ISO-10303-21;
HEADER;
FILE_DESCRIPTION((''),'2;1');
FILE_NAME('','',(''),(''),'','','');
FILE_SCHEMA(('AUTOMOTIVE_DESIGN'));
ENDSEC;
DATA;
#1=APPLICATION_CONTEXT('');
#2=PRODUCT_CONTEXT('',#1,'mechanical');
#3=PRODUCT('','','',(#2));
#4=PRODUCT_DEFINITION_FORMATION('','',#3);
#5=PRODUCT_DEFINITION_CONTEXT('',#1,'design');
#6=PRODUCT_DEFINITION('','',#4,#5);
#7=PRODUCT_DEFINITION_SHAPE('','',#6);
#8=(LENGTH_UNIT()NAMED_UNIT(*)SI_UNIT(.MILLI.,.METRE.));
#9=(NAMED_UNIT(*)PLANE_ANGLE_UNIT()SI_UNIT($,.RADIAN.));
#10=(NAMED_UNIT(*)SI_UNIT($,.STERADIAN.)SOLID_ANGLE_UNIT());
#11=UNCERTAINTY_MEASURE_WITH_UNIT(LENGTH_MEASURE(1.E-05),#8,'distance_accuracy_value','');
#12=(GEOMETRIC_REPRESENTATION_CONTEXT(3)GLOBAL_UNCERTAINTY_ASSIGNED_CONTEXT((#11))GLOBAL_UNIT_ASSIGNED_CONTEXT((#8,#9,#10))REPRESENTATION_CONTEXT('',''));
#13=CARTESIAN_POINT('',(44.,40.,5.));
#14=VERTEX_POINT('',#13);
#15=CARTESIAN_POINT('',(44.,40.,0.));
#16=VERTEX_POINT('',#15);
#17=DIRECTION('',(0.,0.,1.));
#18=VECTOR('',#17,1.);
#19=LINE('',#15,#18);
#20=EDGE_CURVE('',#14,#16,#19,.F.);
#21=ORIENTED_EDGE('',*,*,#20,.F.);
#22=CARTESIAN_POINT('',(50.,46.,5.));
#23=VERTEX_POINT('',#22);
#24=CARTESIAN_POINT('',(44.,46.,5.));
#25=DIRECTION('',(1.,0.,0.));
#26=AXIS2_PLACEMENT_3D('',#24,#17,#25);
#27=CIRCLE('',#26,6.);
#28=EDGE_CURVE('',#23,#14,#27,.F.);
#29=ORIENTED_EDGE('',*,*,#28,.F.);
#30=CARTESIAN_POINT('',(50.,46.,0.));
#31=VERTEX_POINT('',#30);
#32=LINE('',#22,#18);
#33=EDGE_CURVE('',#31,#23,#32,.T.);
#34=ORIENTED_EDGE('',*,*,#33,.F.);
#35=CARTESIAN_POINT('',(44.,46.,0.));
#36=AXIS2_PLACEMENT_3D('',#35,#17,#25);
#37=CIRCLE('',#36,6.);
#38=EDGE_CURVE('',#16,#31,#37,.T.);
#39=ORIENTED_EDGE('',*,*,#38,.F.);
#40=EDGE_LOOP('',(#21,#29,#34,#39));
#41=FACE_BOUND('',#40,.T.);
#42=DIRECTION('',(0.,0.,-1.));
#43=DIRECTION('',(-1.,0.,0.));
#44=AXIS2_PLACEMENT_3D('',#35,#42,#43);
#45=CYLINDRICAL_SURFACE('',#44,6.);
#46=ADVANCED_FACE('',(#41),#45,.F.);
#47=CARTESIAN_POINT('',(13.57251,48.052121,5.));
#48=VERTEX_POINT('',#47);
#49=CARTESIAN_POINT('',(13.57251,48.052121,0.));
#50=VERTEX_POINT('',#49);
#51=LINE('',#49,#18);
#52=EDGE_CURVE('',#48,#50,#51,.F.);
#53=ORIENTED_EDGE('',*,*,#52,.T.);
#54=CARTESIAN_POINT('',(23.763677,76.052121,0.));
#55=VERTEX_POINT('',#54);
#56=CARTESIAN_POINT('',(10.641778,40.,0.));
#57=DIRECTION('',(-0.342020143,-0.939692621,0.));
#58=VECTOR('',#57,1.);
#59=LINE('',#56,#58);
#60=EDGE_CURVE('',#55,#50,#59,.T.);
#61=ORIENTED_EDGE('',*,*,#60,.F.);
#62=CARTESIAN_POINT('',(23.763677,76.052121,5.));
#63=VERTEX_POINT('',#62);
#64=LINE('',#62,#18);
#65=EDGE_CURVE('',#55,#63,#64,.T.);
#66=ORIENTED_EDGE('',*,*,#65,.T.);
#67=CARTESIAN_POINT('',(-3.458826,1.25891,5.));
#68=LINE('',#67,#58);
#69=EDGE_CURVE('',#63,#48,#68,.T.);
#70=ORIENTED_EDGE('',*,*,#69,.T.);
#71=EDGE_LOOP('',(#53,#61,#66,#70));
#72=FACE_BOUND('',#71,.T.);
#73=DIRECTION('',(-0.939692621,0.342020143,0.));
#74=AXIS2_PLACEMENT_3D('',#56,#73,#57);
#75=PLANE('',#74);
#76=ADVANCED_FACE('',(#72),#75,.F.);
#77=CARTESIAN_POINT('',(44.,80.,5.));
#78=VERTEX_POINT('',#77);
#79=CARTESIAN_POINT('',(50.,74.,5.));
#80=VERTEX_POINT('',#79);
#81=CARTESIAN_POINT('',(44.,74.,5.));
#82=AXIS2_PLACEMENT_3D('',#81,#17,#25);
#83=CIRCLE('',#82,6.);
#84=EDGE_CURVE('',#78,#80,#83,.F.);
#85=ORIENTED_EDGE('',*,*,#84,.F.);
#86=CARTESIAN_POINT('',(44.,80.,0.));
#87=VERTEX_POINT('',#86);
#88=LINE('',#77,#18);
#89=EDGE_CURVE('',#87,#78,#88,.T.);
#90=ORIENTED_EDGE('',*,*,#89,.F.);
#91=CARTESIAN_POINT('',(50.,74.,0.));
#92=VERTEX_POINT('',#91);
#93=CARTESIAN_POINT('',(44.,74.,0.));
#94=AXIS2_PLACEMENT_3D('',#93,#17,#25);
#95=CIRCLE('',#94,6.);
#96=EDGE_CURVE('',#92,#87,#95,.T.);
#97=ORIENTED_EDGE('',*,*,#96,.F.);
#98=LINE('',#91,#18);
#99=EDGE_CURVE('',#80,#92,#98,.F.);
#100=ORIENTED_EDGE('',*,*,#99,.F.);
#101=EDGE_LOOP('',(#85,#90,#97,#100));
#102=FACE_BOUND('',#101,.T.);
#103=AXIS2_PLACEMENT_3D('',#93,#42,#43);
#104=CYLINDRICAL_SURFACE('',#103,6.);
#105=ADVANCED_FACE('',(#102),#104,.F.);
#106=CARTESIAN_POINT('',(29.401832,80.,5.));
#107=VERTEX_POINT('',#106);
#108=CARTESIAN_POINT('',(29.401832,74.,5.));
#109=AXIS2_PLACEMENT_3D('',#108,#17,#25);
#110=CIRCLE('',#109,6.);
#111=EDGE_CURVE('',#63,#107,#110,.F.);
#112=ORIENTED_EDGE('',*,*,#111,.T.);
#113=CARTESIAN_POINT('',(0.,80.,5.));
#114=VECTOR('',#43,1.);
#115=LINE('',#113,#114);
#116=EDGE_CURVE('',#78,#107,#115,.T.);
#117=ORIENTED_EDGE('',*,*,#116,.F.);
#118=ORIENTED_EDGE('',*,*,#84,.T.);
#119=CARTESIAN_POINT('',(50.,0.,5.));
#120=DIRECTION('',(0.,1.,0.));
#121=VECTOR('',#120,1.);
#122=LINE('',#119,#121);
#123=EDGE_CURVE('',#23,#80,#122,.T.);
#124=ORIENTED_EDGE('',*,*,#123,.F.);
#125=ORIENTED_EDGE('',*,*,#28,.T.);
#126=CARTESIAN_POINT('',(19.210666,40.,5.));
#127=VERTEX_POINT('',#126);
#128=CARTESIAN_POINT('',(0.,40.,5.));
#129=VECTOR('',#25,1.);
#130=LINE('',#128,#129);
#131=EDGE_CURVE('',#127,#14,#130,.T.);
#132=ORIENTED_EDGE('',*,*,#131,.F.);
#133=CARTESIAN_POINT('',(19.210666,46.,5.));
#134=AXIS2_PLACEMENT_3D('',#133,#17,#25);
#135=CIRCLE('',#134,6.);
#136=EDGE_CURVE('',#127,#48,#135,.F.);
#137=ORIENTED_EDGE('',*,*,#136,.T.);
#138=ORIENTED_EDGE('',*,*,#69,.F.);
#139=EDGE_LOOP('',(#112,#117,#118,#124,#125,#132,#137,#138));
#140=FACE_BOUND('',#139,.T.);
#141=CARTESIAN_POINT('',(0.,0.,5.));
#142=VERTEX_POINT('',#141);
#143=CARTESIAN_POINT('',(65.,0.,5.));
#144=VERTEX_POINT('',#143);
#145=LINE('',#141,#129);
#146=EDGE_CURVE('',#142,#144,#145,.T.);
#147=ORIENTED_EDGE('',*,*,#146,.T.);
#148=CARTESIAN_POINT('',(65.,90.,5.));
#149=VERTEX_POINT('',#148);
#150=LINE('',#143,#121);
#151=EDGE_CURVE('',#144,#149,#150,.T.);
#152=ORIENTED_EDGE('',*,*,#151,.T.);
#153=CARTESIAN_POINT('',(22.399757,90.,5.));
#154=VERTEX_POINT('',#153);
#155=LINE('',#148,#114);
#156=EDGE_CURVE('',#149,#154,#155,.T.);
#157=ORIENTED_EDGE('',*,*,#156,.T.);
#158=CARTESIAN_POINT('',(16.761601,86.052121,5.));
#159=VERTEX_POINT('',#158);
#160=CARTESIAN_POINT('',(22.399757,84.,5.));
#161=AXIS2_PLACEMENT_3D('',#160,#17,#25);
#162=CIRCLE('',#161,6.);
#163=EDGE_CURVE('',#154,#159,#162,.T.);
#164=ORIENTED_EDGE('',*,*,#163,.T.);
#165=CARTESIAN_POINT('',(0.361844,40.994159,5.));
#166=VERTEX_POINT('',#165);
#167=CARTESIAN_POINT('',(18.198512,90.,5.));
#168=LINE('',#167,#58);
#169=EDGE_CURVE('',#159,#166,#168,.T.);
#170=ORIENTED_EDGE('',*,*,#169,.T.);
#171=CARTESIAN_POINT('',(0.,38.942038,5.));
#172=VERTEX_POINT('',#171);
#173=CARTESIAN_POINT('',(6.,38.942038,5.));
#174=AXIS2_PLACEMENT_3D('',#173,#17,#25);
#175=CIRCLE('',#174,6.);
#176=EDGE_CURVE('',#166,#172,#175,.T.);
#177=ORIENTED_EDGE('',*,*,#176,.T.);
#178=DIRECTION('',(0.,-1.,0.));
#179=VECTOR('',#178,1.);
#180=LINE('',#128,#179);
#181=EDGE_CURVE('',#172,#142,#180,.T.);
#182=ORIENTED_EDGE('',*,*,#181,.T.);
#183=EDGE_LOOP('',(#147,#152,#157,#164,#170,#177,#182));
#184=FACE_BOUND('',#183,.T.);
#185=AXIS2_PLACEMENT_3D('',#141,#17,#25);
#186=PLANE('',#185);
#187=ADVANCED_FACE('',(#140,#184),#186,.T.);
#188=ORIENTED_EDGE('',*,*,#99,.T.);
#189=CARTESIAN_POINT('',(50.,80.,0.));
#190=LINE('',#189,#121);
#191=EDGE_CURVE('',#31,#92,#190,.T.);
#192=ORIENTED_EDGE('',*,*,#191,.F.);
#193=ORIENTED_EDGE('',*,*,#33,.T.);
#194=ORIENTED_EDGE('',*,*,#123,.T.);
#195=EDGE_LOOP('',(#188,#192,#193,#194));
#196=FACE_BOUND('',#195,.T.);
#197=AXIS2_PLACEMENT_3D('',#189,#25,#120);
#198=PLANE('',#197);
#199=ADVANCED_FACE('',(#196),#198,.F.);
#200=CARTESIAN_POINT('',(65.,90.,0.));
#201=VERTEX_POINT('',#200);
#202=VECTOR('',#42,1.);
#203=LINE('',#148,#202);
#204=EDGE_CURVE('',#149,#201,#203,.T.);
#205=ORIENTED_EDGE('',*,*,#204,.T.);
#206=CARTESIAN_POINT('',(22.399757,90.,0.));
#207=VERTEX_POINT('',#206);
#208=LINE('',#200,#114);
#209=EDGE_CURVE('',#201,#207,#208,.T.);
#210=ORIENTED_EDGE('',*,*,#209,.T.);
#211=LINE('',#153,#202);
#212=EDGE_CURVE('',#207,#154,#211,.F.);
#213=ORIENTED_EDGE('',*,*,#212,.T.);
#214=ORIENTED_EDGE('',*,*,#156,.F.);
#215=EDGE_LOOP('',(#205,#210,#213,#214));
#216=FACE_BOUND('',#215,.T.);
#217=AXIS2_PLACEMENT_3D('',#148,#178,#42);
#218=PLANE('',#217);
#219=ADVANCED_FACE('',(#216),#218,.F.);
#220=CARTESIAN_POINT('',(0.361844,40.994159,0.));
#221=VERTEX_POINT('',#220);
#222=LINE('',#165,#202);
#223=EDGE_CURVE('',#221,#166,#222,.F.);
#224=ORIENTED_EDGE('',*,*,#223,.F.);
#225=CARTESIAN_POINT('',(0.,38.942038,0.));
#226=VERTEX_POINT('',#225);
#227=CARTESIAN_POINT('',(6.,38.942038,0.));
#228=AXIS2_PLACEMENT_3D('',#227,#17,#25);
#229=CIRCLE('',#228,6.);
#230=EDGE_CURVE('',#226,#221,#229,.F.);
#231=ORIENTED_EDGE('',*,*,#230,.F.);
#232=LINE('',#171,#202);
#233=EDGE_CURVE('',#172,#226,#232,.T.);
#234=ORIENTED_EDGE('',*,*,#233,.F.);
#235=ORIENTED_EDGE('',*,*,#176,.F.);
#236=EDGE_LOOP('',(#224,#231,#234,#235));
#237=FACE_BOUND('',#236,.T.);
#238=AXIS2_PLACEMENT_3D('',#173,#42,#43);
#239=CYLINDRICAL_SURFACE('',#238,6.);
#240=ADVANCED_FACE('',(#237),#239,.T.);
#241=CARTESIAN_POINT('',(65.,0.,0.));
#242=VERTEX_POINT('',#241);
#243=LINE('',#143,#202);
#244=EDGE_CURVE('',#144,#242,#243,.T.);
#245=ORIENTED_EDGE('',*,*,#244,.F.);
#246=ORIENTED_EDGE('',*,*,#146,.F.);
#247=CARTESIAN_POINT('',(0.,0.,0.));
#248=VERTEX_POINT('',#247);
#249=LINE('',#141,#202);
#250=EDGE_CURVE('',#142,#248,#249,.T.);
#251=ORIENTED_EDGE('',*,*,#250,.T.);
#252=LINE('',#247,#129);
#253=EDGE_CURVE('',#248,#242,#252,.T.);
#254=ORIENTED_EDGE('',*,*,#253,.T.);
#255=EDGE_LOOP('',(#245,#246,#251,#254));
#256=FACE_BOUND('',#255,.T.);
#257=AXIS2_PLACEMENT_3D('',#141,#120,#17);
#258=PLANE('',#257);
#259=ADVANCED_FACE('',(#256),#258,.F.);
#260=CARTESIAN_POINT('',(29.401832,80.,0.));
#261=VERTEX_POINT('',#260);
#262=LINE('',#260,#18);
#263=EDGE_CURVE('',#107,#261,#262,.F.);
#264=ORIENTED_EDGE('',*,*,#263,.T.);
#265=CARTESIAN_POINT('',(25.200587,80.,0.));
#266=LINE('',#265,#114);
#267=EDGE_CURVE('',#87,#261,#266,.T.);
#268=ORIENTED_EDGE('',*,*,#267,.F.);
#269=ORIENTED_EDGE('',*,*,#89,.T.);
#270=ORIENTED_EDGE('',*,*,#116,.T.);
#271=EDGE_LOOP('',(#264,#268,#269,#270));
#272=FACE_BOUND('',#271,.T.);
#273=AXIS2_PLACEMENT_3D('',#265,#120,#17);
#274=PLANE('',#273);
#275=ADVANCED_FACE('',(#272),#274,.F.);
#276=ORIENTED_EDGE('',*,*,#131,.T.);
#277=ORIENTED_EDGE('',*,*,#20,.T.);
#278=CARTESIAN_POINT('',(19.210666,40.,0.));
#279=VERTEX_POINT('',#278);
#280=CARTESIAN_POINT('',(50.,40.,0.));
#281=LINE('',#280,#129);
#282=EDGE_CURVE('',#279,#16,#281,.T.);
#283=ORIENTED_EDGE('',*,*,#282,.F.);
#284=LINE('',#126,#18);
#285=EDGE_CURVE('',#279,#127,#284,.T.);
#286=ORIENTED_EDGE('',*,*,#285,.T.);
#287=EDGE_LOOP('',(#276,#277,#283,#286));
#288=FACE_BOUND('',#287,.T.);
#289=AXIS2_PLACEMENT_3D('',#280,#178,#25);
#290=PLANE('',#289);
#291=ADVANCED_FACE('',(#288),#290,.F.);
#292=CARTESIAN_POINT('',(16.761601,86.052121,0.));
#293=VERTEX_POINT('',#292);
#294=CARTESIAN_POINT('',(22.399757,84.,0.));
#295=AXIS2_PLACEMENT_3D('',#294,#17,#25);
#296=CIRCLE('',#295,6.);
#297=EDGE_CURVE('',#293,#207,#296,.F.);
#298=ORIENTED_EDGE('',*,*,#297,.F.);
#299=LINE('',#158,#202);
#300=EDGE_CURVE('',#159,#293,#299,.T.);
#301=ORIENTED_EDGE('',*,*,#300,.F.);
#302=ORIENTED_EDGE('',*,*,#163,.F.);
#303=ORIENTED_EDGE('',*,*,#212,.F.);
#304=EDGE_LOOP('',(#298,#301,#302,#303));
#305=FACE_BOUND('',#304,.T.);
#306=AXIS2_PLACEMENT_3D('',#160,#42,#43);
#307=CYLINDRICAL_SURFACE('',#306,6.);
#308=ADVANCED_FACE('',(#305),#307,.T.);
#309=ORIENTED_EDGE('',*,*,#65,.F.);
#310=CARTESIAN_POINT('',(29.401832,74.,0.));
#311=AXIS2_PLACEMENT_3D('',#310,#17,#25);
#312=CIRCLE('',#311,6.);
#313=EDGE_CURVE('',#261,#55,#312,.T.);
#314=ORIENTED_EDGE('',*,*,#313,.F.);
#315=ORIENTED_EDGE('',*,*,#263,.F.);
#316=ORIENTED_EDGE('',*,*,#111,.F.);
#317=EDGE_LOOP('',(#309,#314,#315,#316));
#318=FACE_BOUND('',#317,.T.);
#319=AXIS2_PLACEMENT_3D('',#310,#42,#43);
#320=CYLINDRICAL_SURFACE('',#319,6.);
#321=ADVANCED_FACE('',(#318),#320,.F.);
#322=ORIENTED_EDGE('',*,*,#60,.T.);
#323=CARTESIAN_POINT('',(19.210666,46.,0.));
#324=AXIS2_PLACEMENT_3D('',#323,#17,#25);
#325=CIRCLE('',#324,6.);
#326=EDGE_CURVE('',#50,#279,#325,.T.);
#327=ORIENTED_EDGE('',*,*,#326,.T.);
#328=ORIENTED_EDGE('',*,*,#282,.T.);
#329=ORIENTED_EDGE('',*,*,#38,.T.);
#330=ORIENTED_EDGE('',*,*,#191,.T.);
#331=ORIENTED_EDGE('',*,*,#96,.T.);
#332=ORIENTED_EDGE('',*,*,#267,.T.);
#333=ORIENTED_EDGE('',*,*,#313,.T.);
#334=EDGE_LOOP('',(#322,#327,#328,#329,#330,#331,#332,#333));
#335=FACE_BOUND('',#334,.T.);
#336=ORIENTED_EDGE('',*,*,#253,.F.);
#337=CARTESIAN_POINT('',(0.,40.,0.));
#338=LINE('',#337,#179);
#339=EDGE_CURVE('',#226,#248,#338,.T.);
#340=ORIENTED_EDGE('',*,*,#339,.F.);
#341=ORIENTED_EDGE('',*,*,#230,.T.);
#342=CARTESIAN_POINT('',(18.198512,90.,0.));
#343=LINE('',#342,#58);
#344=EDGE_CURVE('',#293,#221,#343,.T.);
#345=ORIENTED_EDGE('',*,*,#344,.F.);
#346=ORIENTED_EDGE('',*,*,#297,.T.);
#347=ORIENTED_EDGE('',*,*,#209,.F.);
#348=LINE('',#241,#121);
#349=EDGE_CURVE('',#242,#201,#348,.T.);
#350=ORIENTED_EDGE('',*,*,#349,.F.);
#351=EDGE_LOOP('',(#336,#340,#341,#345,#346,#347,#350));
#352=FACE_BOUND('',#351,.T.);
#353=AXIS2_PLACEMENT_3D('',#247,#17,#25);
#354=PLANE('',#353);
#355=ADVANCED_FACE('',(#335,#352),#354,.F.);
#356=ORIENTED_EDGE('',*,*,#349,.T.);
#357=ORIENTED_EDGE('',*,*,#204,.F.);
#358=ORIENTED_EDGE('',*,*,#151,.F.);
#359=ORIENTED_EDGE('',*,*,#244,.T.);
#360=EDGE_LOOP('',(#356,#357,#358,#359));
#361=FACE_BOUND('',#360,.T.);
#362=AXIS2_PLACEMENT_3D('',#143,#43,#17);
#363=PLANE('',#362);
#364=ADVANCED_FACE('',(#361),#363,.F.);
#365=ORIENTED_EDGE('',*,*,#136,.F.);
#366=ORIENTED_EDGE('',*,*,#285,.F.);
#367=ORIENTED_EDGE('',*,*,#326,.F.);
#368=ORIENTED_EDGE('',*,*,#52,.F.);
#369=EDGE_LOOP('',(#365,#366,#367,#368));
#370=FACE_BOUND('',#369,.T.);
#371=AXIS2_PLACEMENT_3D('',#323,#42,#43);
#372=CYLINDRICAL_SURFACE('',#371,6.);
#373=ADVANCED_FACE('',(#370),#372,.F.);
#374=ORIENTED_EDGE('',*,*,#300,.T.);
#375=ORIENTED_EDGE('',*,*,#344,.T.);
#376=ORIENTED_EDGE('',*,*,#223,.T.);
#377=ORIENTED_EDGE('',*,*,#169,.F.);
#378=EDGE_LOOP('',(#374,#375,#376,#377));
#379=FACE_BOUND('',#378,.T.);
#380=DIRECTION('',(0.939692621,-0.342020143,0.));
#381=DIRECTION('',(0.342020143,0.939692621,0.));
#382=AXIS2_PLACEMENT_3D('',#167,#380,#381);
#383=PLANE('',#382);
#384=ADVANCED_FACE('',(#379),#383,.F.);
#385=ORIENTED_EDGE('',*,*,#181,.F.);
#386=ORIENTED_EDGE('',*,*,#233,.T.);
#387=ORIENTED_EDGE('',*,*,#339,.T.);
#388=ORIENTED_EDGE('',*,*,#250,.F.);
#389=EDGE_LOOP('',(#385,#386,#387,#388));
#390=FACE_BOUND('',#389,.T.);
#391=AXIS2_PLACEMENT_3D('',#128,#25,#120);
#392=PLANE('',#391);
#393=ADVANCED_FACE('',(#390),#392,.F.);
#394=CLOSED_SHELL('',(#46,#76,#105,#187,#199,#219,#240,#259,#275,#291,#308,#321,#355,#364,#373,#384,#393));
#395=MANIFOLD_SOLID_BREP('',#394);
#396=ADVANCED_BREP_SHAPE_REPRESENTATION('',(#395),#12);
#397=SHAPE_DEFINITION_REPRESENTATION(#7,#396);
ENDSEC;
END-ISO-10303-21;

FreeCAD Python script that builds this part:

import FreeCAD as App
import Part
import Sketcher

V = App.Vector
Q = App.Units.Quantity


def edges_at(feature, points):
    """Names of the edges that pass closest to the given points."""
    edges = feature.Shape.Edges
    near = lambda p: min(range(len(edges)), key=lambda i: edges[i].distToShape(Part.Vertex(*p))[0])
    return sorted({f"Edge{near(p) + 1}" for p in points})

doc = App.newDocument("Part")
params = doc.addObject("Spreadsheet::Sheet", "Params")
for row, (alias, value) in enumerate([
    ("sketch1_width", "65 mm"),
    ("sketch1_height", "90 mm"),
    ("sketch1_height2", "40 mm"),
    ("pad1_length", "5 mm"),
    ("sketch2_height", "40 mm"),
    ("fillet_radius", "6 mm"),
], start=1):
    params.set(f"A{row}", alias)
    params.set(f"B{row}", "=" + value)
    params.setAlias(f"B{row}", alias)

body = doc.addObject("PartDesign::Body", "Body")

# Sketch on XY plane
sketch1 = body.newObject("Sketcher::SketchObject", "Sketch")
sketch1.AttachmentSupport = (doc.getObject("XY_Plane"), [""])
sketch1.MapMode = "FlatFace"
sketch1.addGeometry([
    Part.LineSegment(V(0, 0, 0), V(65, 0, 0)),  # 0
    Part.LineSegment(V(65, 0, 0), V(65, 90, 0)),  # 1
    Part.LineSegment(V(65, 90, 0), V(18.198512, 90, 0)),  # 2
    Part.LineSegment(V(18.198512, 90, 0), V(0, 40, 0)),  # 3
    Part.LineSegment(V(0, 40, 0), V(0, 0, 0)),  # 4
], False)
sketch1.addConstraint([
    Sketcher.Constraint("Coincident", 0, 2, 1, 1),
    Sketcher.Constraint("Coincident", 1, 2, 2, 1),
    Sketcher.Constraint("Coincident", 2, 2, 3, 1),
    Sketcher.Constraint("Coincident", 3, 2, 4, 1),
    Sketcher.Constraint("Coincident", 4, 2, 0, 1),
    Sketcher.Constraint("Horizontal", 0),
    Sketcher.Constraint("Vertical", 1),
    Sketcher.Constraint("Horizontal", 2),
    Sketcher.Constraint("Vertical", 4),
    Sketcher.Constraint("Coincident", 4, 2, -1, 1),
    Sketcher.Constraint("DistanceX", 0, 1, 0, 2, 65.0),
    Sketcher.Constraint("DistanceY", 1, 1, 1, 2, 90.0),
    Sketcher.Constraint("DistanceY", 4, 2, 4, 1, 40.0),
    Sketcher.Constraint("Angle", 3, Q("-110 deg")),
])
sketch1.setExpression("Constraints[10]", "Params.sketch1_width")
sketch1.setExpression("Constraints[11]", "Params.sketch1_height")
sketch1.setExpression("Constraints[12]", "Params.sketch1_height2")
pad1 = body.newObject("PartDesign::Pad", "Pad")
pad1.Profile = sketch1
pad1.setExpression("Length", "Params.pad1_length")

# Sketch on XY plane
sketch2 = body.newObject("Sketcher::SketchObject", "Sketch001")
sketch2.AttachmentSupport = (doc.getObject("XY_Plane"), [""])
sketch2.MapMode = "FlatFace"
sketch2.AttachmentOffset = App.Placement(V(0, 0, 5), App.Rotation())
sketch2.addGeometry([
    Part.LineSegment(V(25.200587, 80, 0), V(10.641778, 40, 0)),
    Part.LineSegment(V(10.641778, 40, 0), V(50, 40, 0)),
    Part.LineSegment(V(50, 40, 0), V(50, 80, 0)),
    Part.LineSegment(V(50, 80, 0), V(25.200587, 80, 0)),
], False)
sketch2.addConstraint([
    Sketcher.Constraint("Coincident", 0, 2, 1, 1),
    Sketcher.Constraint("Coincident", 1, 2, 2, 1),
    Sketcher.Constraint("Coincident", 2, 2, 3, 1),
    Sketcher.Constraint("Coincident", 3, 2, 0, 1),
    Sketcher.Constraint("Horizontal", 1),
    Sketcher.Constraint("Vertical", 2),
    Sketcher.Constraint("Horizontal", 3),
    Sketcher.Constraint("DistanceY", 2, 1, 2, 2, 40.0),
    Sketcher.Constraint("Angle", 0, Q("-110 deg")),
    Sketcher.Constraint("DistanceY", -1, 1, 0, 2, 40.0),
    Sketcher.Constraint("DistanceX", -1, 1, 1, 2, 50.0),
    Sketcher.Constraint("DistanceX", 1, 1, 1, 2, 39.358222),
])
sketch2.setExpression("Constraints[7]", "Params.sketch2_height")
pocket1 = body.newObject("PartDesign::Pocket", "Pocket")
pocket1.Profile = sketch2
pocket1.Type = "ThroughAll"
pocket1.Midplane = True
doc.recompute()

fillet = body.newObject("PartDesign::Fillet", "Fillet")
fillet.Base = (pocket1, edges_at(pocket1, [
    (50, 40, 2.5),
    (10.642, 40, 2.5),
    (25.201, 80, 2.5),
    (50, 80, 2.5),
    (0, 40, 2.5),
    (18.199, 90, 2.5),
]))
fillet.setExpression("Radius", "Params.fillet_radius")

doc.recompute()
